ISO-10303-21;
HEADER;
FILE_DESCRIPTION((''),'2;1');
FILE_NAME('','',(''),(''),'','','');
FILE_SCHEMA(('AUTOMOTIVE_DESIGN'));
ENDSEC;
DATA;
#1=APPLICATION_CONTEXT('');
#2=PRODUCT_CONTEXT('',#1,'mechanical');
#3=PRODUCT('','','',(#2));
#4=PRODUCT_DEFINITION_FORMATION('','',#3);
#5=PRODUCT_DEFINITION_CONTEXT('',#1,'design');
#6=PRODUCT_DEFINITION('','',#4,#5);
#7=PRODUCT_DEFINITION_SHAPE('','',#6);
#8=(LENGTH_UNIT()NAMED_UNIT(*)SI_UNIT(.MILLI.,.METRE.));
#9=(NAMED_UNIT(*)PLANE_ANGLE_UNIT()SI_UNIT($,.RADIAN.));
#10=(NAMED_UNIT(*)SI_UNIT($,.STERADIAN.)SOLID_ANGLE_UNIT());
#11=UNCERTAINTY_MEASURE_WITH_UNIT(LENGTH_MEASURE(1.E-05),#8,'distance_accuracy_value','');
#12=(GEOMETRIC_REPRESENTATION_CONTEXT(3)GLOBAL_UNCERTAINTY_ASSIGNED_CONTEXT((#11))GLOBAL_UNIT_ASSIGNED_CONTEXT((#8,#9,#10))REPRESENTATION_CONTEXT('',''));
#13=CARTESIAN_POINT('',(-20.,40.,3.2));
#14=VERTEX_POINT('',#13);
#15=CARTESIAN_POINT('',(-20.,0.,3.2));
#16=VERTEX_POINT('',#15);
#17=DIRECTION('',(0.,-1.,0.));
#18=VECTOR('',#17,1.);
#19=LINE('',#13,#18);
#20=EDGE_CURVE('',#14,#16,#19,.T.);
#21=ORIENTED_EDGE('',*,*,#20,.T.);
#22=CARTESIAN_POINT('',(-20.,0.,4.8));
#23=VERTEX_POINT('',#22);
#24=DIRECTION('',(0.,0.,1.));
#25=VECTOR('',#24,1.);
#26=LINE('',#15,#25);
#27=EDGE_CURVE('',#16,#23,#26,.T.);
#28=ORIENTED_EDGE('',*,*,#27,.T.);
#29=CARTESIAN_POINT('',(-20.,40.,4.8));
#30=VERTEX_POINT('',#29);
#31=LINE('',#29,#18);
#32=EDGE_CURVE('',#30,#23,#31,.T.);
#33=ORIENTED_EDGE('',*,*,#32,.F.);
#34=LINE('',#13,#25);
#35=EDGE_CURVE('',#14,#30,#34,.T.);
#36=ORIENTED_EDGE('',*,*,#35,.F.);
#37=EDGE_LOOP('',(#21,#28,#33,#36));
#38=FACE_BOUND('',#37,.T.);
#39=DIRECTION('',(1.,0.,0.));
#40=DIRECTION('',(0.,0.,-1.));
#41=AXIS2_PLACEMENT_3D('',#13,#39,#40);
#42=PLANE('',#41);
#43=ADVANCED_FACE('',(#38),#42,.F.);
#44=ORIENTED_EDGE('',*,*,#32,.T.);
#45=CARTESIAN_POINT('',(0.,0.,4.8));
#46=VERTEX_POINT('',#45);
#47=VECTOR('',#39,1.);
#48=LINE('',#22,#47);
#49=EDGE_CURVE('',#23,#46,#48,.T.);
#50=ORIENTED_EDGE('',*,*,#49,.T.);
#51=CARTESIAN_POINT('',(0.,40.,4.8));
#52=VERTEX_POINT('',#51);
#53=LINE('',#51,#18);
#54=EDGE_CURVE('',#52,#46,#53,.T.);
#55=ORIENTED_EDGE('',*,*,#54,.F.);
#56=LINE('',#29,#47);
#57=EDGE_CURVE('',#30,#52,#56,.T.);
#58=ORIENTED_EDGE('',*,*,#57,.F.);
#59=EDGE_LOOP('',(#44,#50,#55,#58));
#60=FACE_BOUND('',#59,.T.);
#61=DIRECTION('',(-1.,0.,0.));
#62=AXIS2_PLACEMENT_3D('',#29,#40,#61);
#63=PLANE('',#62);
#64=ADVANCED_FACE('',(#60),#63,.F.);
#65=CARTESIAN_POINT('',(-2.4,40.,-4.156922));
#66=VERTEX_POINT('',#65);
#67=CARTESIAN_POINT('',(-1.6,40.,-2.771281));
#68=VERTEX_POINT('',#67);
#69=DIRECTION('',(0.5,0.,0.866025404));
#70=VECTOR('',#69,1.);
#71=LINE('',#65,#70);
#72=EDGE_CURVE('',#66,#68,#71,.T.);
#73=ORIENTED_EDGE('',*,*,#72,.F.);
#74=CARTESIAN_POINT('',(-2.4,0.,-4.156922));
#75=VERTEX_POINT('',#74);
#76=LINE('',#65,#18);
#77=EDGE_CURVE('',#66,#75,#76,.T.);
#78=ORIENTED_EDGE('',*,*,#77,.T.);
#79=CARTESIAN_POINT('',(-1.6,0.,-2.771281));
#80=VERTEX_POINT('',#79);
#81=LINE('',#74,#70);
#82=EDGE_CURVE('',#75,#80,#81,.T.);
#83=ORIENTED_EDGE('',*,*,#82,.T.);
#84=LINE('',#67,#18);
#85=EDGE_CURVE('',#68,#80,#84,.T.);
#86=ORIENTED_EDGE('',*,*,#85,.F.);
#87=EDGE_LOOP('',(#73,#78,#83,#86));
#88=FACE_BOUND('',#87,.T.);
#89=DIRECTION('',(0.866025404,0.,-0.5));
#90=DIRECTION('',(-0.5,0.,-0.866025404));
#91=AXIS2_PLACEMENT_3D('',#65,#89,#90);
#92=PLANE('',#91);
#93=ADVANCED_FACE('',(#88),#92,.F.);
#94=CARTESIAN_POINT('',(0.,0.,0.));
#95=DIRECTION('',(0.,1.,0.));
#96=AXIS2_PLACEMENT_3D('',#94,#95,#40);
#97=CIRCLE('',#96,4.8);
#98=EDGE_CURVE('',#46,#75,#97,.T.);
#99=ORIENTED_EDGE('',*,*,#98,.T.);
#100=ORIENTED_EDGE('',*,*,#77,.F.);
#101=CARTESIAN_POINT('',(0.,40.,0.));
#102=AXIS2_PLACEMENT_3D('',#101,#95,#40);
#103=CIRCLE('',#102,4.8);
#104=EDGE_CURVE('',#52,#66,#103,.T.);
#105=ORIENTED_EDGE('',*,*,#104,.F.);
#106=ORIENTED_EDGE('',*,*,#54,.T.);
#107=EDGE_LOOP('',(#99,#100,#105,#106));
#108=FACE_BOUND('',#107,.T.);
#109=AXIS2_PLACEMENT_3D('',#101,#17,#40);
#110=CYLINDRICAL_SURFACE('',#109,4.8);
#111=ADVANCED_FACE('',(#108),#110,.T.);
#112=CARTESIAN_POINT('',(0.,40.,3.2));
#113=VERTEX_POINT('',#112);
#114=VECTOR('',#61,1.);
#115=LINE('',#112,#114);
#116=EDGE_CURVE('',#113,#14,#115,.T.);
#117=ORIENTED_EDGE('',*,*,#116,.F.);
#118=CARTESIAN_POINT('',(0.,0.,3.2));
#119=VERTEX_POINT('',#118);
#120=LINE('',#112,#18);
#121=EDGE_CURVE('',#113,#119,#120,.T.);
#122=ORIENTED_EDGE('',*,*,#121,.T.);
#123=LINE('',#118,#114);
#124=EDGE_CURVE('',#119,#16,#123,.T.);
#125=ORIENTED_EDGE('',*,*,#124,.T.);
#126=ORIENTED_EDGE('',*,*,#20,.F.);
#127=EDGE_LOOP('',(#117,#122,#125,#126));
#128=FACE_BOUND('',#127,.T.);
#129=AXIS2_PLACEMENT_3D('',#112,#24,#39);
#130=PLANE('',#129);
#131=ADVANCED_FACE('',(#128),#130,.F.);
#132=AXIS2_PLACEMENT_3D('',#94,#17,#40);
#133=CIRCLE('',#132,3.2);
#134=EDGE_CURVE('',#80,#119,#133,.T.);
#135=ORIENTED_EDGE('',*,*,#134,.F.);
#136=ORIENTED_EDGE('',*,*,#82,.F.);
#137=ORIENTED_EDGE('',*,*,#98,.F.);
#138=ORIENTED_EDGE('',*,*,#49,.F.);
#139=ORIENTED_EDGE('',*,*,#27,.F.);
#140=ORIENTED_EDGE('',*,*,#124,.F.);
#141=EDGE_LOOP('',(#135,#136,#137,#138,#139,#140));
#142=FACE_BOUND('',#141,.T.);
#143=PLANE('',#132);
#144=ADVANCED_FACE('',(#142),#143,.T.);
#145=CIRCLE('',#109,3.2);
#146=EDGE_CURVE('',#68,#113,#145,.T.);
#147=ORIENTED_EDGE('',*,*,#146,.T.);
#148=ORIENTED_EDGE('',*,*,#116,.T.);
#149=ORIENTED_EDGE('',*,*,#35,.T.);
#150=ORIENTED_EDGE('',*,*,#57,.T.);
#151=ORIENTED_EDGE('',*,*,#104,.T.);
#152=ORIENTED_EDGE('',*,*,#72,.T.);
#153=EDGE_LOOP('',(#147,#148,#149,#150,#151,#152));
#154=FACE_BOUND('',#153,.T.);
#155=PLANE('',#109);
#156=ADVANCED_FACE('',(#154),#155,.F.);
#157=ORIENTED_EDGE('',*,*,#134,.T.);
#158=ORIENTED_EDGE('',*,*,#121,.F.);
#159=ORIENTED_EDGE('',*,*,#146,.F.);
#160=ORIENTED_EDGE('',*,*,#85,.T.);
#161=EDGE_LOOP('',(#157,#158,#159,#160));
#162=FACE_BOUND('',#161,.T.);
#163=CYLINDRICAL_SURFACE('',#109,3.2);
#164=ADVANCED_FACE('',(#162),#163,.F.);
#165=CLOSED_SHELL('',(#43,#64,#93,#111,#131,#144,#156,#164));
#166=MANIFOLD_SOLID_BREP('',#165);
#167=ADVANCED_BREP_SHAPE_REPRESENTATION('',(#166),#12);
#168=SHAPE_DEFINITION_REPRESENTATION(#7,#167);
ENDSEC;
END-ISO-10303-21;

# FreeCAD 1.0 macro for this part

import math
import FreeCAD as App
import Part
import Sketcher
Q = App.Units.Quantity

doc = App.newDocument("Part")
body = doc.addObject("PartDesign::Body", "Body")

# Sketch on XZ plane
sketch1 = body.newObject("Sketcher::SketchObject", "Sketch")
sketch1.AttachmentSupport = (doc.getObject("XZ_Plane"), [""])
sketch1.MapMode = "FlatFace"
sketch1.addGeometry([
    Part.LineSegment(App.Vector(0, 3.2, 0), App.Vector(-20, 3.2, 0)),  # 0
    Part.LineSegment(App.Vector(-20, 3.2, 0), App.Vector(-20, 4.8, 0)),  # 1
    Part.LineSegment(App.Vector(-20, 4.8, 0), App.Vector(0, 4.8, 0)),  # 2
    Part.ArcOfCircle(Part.Circle(App.Vector(0, 0, 0), App.Vector(0, 0, 1), 4.8), math.radians(-120), math.radians(90)),  # 3
    Part.LineSegment(App.Vector(-2.4, -4.2, 0), App.Vector(-1.6, -2.8, 0)),  # 4
    Part.ArcOfCircle(Part.Circle(App.Vector(0, 0, 0), App.Vector(0, 0, 1), 3.2), math.radians(-120), math.radians(90)),  # 5
], False)
sketch1.addConstraint([
    Sketcher.Constraint("Coincident", 0, 2, 1, 1),
    Sketcher.Constraint("Coincident", 1, 2, 2, 1),
    Sketcher.Constraint("Tangent", 2, 2, 3, 2),
    Sketcher.Constraint("Coincident", 3, 1, 4, 1),
    Sketcher.Constraint("Coincident", 4, 2, 5, 1),
    Sketcher.Constraint("Tangent", 5, 2, 0, 1),
    Sketcher.Constraint("Horizontal", 0),
    Sketcher.Constraint("Vertical", 1),
    Sketcher.Constraint("Horizontal", 2),
    Sketcher.Constraint("Coincident", 3, 3, -1, 1),
    Sketcher.Constraint("Coincident", 5, 3, -1, 1),
    Sketcher.Constraint("Radius", 3, Q("4.8 mm")),
    Sketcher.Constraint("Radius", 5, Q("3.2 mm")),
    Sketcher.Constraint("DistanceX", 0, 2, 0, 1, Q("20 mm")),
    Sketcher.Constraint("Angle", 4, Q("60 deg")),
    Sketcher.Constraint("DistanceX", 3, 1, -1, 1, Q("2.4 mm")),
])
pad1 = body.newObject("PartDesign::Pad", "Pad")
pad1.Profile = sketch1
pad1.Length = 40
pad1.Reversed = True

doc.recompute()
